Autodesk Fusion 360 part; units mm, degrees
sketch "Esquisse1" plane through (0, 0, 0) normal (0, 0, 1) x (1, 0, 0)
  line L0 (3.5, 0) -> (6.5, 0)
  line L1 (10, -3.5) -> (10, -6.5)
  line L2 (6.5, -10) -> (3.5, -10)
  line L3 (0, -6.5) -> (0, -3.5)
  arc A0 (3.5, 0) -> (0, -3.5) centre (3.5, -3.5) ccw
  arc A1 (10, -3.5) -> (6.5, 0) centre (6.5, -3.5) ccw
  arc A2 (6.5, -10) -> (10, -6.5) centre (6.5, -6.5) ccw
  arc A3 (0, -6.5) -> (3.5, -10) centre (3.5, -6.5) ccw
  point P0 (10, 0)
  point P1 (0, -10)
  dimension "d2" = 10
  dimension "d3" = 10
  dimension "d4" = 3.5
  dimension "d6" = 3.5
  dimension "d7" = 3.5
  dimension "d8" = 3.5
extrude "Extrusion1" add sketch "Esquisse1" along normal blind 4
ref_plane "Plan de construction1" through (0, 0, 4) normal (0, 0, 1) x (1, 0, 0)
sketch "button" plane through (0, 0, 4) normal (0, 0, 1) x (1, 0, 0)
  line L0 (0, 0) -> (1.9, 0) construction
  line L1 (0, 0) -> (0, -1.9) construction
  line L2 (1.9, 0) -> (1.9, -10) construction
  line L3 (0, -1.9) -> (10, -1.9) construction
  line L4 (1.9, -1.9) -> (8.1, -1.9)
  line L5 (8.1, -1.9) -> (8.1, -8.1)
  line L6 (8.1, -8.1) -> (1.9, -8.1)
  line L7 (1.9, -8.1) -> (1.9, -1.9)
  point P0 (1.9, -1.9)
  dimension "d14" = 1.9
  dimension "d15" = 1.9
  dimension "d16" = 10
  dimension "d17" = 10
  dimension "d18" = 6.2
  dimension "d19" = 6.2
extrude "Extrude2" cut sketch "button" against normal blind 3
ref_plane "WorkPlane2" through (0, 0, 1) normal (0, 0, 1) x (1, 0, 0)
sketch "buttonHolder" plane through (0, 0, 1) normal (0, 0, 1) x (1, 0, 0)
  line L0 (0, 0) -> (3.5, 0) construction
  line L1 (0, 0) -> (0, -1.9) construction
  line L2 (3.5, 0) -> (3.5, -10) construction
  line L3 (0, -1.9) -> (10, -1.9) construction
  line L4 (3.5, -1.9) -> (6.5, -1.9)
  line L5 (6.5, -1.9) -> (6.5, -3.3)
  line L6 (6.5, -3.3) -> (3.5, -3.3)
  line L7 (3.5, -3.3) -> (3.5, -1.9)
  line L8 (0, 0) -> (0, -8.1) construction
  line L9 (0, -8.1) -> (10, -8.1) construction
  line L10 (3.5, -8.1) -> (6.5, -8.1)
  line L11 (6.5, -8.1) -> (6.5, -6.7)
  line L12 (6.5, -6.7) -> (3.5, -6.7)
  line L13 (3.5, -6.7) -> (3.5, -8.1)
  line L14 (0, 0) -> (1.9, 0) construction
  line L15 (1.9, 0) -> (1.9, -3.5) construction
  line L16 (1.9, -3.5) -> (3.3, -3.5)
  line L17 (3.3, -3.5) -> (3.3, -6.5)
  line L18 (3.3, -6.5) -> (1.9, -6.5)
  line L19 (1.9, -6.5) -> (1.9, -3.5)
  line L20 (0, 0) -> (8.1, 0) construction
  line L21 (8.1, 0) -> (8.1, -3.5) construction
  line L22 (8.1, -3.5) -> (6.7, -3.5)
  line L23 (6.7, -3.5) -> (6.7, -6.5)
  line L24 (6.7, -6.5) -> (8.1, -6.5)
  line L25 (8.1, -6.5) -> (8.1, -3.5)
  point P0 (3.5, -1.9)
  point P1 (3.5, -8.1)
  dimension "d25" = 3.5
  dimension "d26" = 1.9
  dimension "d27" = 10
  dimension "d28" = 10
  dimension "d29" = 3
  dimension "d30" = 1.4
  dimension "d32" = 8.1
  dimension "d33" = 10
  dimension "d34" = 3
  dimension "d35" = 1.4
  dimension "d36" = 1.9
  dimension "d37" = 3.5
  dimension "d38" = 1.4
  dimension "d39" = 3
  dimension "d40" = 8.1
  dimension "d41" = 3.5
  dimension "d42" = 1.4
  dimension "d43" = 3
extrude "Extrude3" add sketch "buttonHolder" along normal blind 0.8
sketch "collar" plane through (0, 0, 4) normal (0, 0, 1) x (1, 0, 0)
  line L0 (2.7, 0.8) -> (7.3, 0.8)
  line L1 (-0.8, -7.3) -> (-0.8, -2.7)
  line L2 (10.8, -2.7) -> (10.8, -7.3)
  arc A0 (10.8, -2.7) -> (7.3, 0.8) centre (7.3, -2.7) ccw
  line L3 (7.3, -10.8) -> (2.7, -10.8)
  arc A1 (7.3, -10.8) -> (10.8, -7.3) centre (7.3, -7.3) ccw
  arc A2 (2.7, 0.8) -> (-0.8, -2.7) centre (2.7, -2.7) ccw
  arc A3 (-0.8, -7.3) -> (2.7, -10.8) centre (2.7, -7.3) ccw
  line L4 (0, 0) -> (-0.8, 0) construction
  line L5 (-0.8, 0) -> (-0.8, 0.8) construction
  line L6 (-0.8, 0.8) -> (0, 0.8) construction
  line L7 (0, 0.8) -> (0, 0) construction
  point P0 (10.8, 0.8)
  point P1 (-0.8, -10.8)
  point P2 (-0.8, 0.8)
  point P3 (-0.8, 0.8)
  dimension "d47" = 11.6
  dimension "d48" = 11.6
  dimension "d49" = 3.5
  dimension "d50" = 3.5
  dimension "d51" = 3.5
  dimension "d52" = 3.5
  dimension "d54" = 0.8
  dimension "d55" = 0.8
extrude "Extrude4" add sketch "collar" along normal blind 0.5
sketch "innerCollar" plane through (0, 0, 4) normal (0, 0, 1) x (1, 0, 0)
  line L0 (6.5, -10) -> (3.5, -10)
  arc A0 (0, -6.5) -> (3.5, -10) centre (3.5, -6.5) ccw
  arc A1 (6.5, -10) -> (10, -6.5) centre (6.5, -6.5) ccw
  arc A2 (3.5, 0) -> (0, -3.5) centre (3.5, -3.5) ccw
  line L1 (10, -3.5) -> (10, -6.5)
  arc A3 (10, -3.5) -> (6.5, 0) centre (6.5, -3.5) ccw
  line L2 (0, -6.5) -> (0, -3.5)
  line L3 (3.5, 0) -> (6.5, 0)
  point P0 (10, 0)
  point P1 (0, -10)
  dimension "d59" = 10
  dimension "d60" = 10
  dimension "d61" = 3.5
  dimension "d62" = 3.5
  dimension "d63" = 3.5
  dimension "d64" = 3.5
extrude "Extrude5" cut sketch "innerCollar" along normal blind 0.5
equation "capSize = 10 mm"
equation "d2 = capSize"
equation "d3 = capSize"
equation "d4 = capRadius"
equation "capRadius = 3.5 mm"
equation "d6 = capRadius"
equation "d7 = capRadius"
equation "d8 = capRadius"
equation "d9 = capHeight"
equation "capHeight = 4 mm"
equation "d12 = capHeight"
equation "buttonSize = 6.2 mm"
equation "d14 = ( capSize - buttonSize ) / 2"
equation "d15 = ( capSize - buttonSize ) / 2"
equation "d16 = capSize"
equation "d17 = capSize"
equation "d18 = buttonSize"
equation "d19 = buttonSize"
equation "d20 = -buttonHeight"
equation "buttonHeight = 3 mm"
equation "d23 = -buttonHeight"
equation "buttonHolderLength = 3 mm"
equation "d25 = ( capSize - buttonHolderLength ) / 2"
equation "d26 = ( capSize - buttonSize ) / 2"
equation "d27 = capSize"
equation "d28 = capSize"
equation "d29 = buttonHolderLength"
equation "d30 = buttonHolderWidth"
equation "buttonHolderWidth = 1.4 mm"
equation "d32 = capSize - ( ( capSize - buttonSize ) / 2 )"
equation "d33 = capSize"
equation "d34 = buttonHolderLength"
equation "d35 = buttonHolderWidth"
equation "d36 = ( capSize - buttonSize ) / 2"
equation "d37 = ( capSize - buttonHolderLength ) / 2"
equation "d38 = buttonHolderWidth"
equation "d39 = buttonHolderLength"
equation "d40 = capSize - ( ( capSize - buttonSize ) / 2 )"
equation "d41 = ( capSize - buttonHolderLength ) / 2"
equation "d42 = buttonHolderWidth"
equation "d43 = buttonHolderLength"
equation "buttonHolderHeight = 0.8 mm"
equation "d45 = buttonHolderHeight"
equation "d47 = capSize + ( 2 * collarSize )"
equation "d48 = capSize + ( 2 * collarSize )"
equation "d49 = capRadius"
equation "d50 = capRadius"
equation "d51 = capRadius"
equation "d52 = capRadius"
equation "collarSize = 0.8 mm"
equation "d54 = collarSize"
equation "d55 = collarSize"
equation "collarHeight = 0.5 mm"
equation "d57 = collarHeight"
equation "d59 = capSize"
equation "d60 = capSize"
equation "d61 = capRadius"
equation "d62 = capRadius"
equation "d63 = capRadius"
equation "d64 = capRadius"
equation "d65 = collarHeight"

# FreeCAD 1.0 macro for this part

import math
import FreeCAD as App
import Part
import Sketcher
Q = App.Units.Quantity

doc = App.newDocument("Part")
body = doc.addObject("PartDesign::Body", "Body")
body.AllowCompound = True

# Sketch on XY plane
sketch1 = body.newObject("Sketcher::SketchObject", "Sketch")
sketch1.AttachmentSupport = (doc.getObject("XY_Plane"), [""])
sketch1.MapMode = "FlatFace"
sketch1.addGeometry([
    Part.LineSegment(App.Vector(6.5, 0, 0), App.Vector(3.5, 0, 0)),  # 0
    Part.ArcOfCircle(Part.Circle(App.Vector(3.5, -3.5, 0), App.Vector(0, 0, 1), 3.5), math.radians(90), math.radians(180)),  # 1
    Part.LineSegment(App.Vector(0, -3.5, 0), App.Vector(0, -6.5, 0)),  # 2
    Part.ArcOfCircle(Part.Circle(App.Vector(3.5, -6.5, 0), App.Vector(0, 0, 1), 3.5), math.radians(180), math.radians(270)),  # 3
    Part.LineSegment(App.Vector(3.5, -10, 0), App.Vector(6.5, -10, 0)),  # 4
    Part.ArcOfCircle(Part.Circle(App.Vector(6.5, -6.5, 0), App.Vector(0, 0, 1), 3.5), math.radians(-90), math.radians(0)),  # 5
    Part.LineSegment(App.Vector(10, -6.5, 0), App.Vector(10, -3.5, 0)),  # 6
    Part.ArcOfCircle(Part.Circle(App.Vector(6.5, -3.5, 0), App.Vector(0, 0, 1), 3.5), math.radians(0), math.radians(90)),  # 7
], False)
sketch1.addConstraint([
    Sketcher.Constraint("Tangent", 0, 2, 1, 1),
    Sketcher.Constraint("Tangent", 1, 2, 2, 1),
    Sketcher.Constraint("Tangent", 2, 2, 3, 1),
    Sketcher.Constraint("Tangent", 3, 2, 4, 1),
    Sketcher.Constraint("Tangent", 4, 2, 5, 1),
    Sketcher.Constraint("Tangent", 5, 2, 6, 1),
    Sketcher.Constraint("Tangent", 6, 2, 7, 1),
    Sketcher.Constraint("Tangent", 7, 2, 0, 1),
    Sketcher.Constraint("Horizontal", 0),
    Sketcher.Constraint("Vertical", 2),
    Sketcher.Constraint("Horizontal", 4),
    Sketcher.Constraint("Vertical", 6),
    Sketcher.Constraint("Equal", 1, 3),
    Sketcher.Constraint("Equal", 3, 5),
    Sketcher.Constraint("Equal", 5, 7),
    Sketcher.Constraint("PointOnObject", 0, 2, -1),
    Sketcher.Constraint("PointOnObject", 1, 2, -2),
    Sketcher.Constraint("Equal", 4, 2),
    Sketcher.Constraint("Radius", 1, Q("3.5 mm")),
    Sketcher.Constraint("DistanceY", 3, 2, -1, 1, Q("10 mm")),
])
pad1 = body.newObject("PartDesign::Pad", "Pad")
pad1.Profile = sketch1
pad1.Length = 4

# Sketch on XY plane
sketch2 = body.newObject("Sketcher::SketchObject", "Sketch001")
sketch2.AttachmentSupport = (doc.getObject("XY_Plane"), [""])
sketch2.MapMode = "FlatFace"
sketch2.AttachmentOffset = App.Placement(App.Vector(0, 0, 4), App.Rotation())
sketch2.addGeometry([
    Part.LineSegment(App.Vector(8, -2, 0), App.Vector(2, -2, 0)),
    Part.LineSegment(App.Vector(2, -2, 0), App.Vector(2, -8, 0)),
    Part.LineSegment(App.Vector(2, -8, 0), App.Vector(8, -8, 0)),
    Part.LineSegment(App.Vector(8, -8, 0), App.Vector(8, -2, 0)),
], False)
sketch2.addConstraint([
    Sketcher.Constraint("Coincident", 0, 2, 1, 1),
    Sketcher.Constraint("Coincident", 1, 2, 2, 1),
    Sketcher.Constraint("Coincident", 2, 2, 3, 1),
    Sketcher.Constraint("Coincident", 3, 2, 0, 1),
    Sketcher.Constraint("Horizontal", 0),
    Sketcher.Constraint("Vertical", 1),
    Sketcher.Constraint("Horizontal", 2),
    Sketcher.Constraint("Vertical", 3),
    Sketcher.Constraint("Equal", 2, 1),
    Sketcher.Constraint("DistanceX", 0, 2, 0, 1, Q("6.2 mm")),
    Sketcher.Constraint("DistanceX", -1, 1, 0, 2, Q("1.9 mm")),
    Sketcher.Constraint("DistanceY", 0, 2, -1, 1, Q("1.9 mm")),
])
pocket1 = body.newObject("PartDesign::Pocket", "Pocket")
pocket1.Profile = sketch2
pocket1.Length = 3

# Sketch on XY plane
sketch3 = body.newObject("Sketcher::SketchObject", "Sketch002")
sketch3.AttachmentSupport = (doc.getObject("XY_Plane"), [""])
sketch3.MapMode = "FlatFace"
sketch3.AttachmentOffset = App.Placement(App.Vector(0, 0, 1), App.Rotation())
sketch3.addGeometry([
    Part.LineSegment(App.Vector(6.5, -1.9, 0), App.Vector(3.5, -1.9, 0)),  # 0
    Part.LineSegment(App.Vector(3.5, -1.9, 0), App.Vector(3.5, -3.3, 0)),  # 1
    Part.LineSegment(App.Vector(3.5, -3.3, 0), App.Vector(6.5, -3.3, 0)),  # 2
    Part.LineSegment(App.Vector(6.5, -3.3, 0), App.Vector(6.5, -1.9, 0)),  # 3
    Part.LineSegment(App.Vector(3.5, -6.7, 0), App.Vector(3.5, -8.1, 0)),  # 4
    Part.LineSegment(App.Vector(3.5, -8.1, 0), App.Vector(6.5, -8.1, 0)),  # 5
    Part.LineSegment(App.Vector(6.5, -8.1, 0), App.Vector(6.5, -6.7, 0)),  # 6
    Part.LineSegment(App.Vector(6.5, -6.7, 0), App.Vector(3.5, -6.7, 0)),  # 7
    Part.LineSegment(App.Vector(3.3, -3.5, 0), App.Vector(1.9, -3.5, 0)),  # 8
    Part.LineSegment(App.Vector(1.9, -3.5, 0), App.Vector(1.9, -6.5, 0)),  # 9
    Part.LineSegment(App.Vector(1.9, -6.5, 0), App.Vector(3.3, -6.5, 0)),  # 10
    Part.LineSegment(App.Vector(3.3, -6.5, 0), App.Vector(3.3, -3.5, 0)),  # 11
    Part.LineSegment(App.Vector(8.1, -6.5, 0), App.Vector(8.1, -3.5, 0)),  # 12
    Part.LineSegment(App.Vector(8.1, -3.5, 0), App.Vector(6.7, -3.5, 0)),  # 13
    Part.LineSegment(App.Vector(6.7, -3.5, 0), App.Vector(6.7, -6.5, 0)),  # 14
    Part.LineSegment(App.Vector(6.7, -6.5, 0), App.Vector(8.1, -6.5, 0)),  # 15
], False)
sketch3.addConstraint([
    Sketcher.Constraint("Coincident", 0, 2, 1, 1),
    Sketcher.Constraint("Coincident", 1, 2, 2, 1),
    Sketcher.Constraint("Coincident", 2, 2, 3, 1),
    Sketcher.Constraint("Coincident", 3, 2, 0, 1),
    Sketcher.Constraint("Coincident", 4, 2, 5, 1),
    Sketcher.Constraint("Coincident", 5, 2, 6, 1),
    Sketcher.Constraint("Coincident", 6, 2, 7, 1),
    Sketcher.Constraint("Coincident", 7, 2, 4, 1),
    Sketcher.Constraint("Coincident", 8, 2, 9, 1),
    Sketcher.Constraint("Coincident", 9, 2, 10, 1),
    Sketcher.Constraint("Coincident", 10, 2, 11, 1),
    Sketcher.Constraint("Coincident", 11, 2, 8, 1),
    Sketcher.Constraint("Coincident", 12, 2, 13, 1),
    Sketcher.Constraint("Coincident", 13, 2, 14, 1),
    Sketcher.Constraint("Coincident", 14, 2, 15, 1),
    Sketcher.Constraint("Coincident", 15, 2, 12, 1),
    Sketcher.Constraint("Horizontal", 0),
    Sketcher.Constraint("Vertical", 1),
    Sketcher.Constraint("Horizontal", 2),
    Sketcher.Constraint("Vertical", 3),
    Sketcher.Constraint("Vertical", 4),
    Sketcher.Constraint("Horizontal", 5),
    Sketcher.Constraint("Vertical", 6),
    Sketcher.Constraint("Horizontal", 7),
    Sketcher.Constraint("Horizontal", 8),
    Sketcher.Constraint("Vertical", 9),
    Sketcher.Constraint("Horizontal", 10),
    Sketcher.Constraint("Vertical", 11),
    Sketcher.Constraint("Vertical", 12),
    Sketcher.Constraint("Horizontal", 13),
    Sketcher.Constraint("Vertical", 14),
    Sketcher.Constraint("Horizontal", 15),
    Sketcher.Constraint("Horizontal", 11, 2, 12, 2),
    Sketcher.Constraint("Horizontal", 10, 2, 14, 2),
    Sketcher.Constraint("Vertical", 1, 2, 4, 2),
    Sketcher.Constraint("Vertical", 3, 2, 5, 2),
    Sketcher.Constraint("Equal", 10, 13),
    Sketcher.Constraint("Equal", 15, 1),
    Sketcher.Constraint("Equal", 3, 4),
    Sketcher.Constraint("Equal", 7, 9),
    Sketcher.Constraint("DistanceX", 0, 2, 0, 1, Q("3 mm")),
    Sketcher.Constraint("DistanceX", 8, 2, 8, 1, Q("1.4 mm")),
    Sketcher.Constraint("DistanceX", -1, 1, 0, 2, Q("3.5 mm")),
    Sketcher.Constraint("DistanceY", 0, 2, -1, 1, Q("1.9 mm")),
    Sketcher.Constraint("DistanceY", 4, 2, -1, 1, Q("8.1 mm")),
    Sketcher.Constraint("DistanceX", -1, 1, 8, 2, Q("1.9 mm")),
    Sketcher.Constraint("DistanceY", 8, 2, -1, 1, Q("3.5 mm")),
    Sketcher.Constraint("DistanceX", -1, 1, 12, 2, Q("8.1 mm")),
])
pad2 = body.newObject("PartDesign::Pad", "Pad001")
pad2.Profile = sketch3
pad2.Length = 0.8

# Sketch on XY plane
sketch4 = body.newObject("Sketcher::SketchObject", "Sketch003")
sketch4.AttachmentSupport = (doc.getObject("XY_Plane"), [""])
sketch4.MapMode = "FlatFace"
sketch4.AttachmentOffset = App.Placement(App.Vector(0, 0, 4), App.Rotation())
sketch4.addGeometry([
    Part.LineSegment(App.Vector(7.3, 0.8, 0), App.Vector(2.7, 0.8, 0)),  # 0
    Part.ArcOfCircle(Part.Circle(App.Vector(2.7, -2.7, 0), App.Vector(0, 0, 1), 3.5), math.radians(90), math.radians(180)),  # 1
    Part.LineSegment(App.Vector(-0.8, -2.7, 0), App.Vector(-0.8, -7.3, 0)),  # 2
    Part.ArcOfCircle(Part.Circle(App.Vector(2.7, -7.3, 0), App.Vector(0, 0, 1), 3.5), math.radians(180), math.radians(270)),  # 3
    Part.LineSegment(App.Vector(2.7, -10.8, 0), App.Vector(7.3, -10.8, 0)),  # 4
    Part.ArcOfCircle(Part.Circle(App.Vector(7.3, -7.3, 0), App.Vector(0, 0, 1), 3.5), math.radians(-90), math.radians(0)),  # 5
    Part.LineSegment(App.Vector(10.8, -7.3, 0), App.Vector(10.8, -2.7, 0)),  # 6
    Part.ArcOfCircle(Part.Circle(App.Vector(7.3, -2.7, 0), App.Vector(0, 0, 1), 3.5), math.radians(0), math.radians(90)),  # 7
], False)
sketch4.addConstraint([
    Sketcher.Constraint("Tangent", 0, 2, 1, 1),
    Sketcher.Constraint("Tangent", 1, 2, 2, 1),
    Sketcher.Constraint("Tangent", 2, 2, 3, 1),
    Sketcher.Constraint("Tangent", 3, 2, 4, 1),
    Sketcher.Constraint("Tangent", 4, 2, 5, 1),
    Sketcher.Constraint("Tangent", 5, 2, 6, 1),
    Sketcher.Constraint("Tangent", 6, 2, 7, 1),
    Sketcher.Constraint("Tangent", 7, 2, 0, 1),
    Sketcher.Constraint("Horizontal", 0),
    Sketcher.Constraint("Vertical", 2),
    Sketcher.Constraint("Horizontal", 4),
    Sketcher.Constraint("Vertical", 6),
    Sketcher.Constraint("Equal", 1, 3),
    Sketcher.Constraint("Equal", 3, 5),
    Sketcher.Constraint("Equal", 5, 7),
    Sketcher.Constraint("Equal", 4, 2),
    Sketcher.Constraint("Radius", 1, Q("3.5 mm")),
    Sketcher.Constraint("DistanceY", -1, 1, 0, 2, Q("0.8 mm")),
    Sketcher.Constraint("DistanceX", 1, 2, -1, 1, Q("0.8 mm")),
    Sketcher.Constraint("DistanceX", 0, 2, 0, 1, Q("4.6 mm")),
])
pad3 = body.newObject("PartDesign::Pad", "Pad002")
pad3.Profile = sketch4
pad3.Length = 0.5

# Sketch on XY plane
sketch5 = body.newObject("Sketcher::SketchObject", "Sketch004")
sketch5.AttachmentSupport = (doc.getObject("XY_Plane"), [""])
sketch5.MapMode = "FlatFace"
sketch5.AttachmentOffset = App.Placement(App.Vector(0, 0, 4), App.Rotation())
sketch5.addGeometry([
    Part.LineSegment(App.Vector(3.5, -10, 0), App.Vector(6.5, -10, 0)),  # 0
    Part.ArcOfCircle(Part.Circle(App.Vector(6.5, -6.5, 0), App.Vector(0, 0, 1), 3.5), math.radians(-90), math.radians(0)),  # 1
    Part.LineSegment(App.Vector(10, -6.5, 0), App.Vector(10, -3.5, 0)),  # 2
    Part.ArcOfCircle(Part.Circle(App.Vector(6.5, -3.5, 0), App.Vector(0, 0, 1), 3.5), math.radians(0), math.radians(90)),  # 3
    Part.LineSegment(App.Vector(6.5, 0, 0), App.Vector(3.5, 0, 0)),  # 4
    Part.ArcOfCircle(Part.Circle(App.Vector(3.5, -3.5, 0), App.Vector(0, 0, 1), 3.5), math.radians(90), math.radians(180)),  # 5
    Part.LineSegment(App.Vector(0, -3.5, 0), App.Vector(0, -6.5, 0)),  # 6
    Part.ArcOfCircle(Part.Circle(App.Vector(3.5, -6.5, 0), App.Vector(0, 0, 1), 3.5), math.radians(180), math.radians(270)),  # 7
], False)
sketch5.addConstraint([
    Sketcher.Constraint("Tangent", 0, 2, 1, 1),
    Sketcher.Constraint("Tangent", 1, 2, 2, 1),
    Sketcher.Constraint("Tangent", 2, 2, 3, 1),
    Sketcher.Constraint("Tangent", 3, 2, 4, 1),
    Sketcher.Constraint("Tangent", 4, 2, 5, 1),
    Sketcher.Constraint("Tangent", 5, 2, 6, 1),
    Sketcher.Constraint("Tangent", 6, 2, 7, 1),
    Sketcher.Constraint("Tangent", 7, 2, 0, 1),
    Sketcher.Constraint("Horizontal", 0),
    Sketcher.Constraint("Vertical", 2),
    Sketcher.Constraint("Horizontal", 4),
    Sketcher.Constraint("Vertical", 6),
    Sketcher.Constraint("Equal", 1, 3),
    Sketcher.Constraint("Equal", 3, 5),
    Sketcher.Constraint("Equal", 5, 7),
    Sketcher.Constraint("PointOnObject", 3, 2, -1),
    Sketcher.Constraint("PointOnObject", 5, 2, -2),
    Sketcher.Constraint("Equal", 4, 2),
    Sketcher.Constraint("Radius", 1, Q("3.5 mm")),
    Sketcher.Constraint("DistanceY", 0, 2, -1, 1, Q("10 mm")),
])
pocket2 = body.newObject("PartDesign::Pocket", "Pocket001")
pocket2.Profile = sketch5
pocket2.Length = 0.5
pocket2.Reversed = True

doc.recompute()
